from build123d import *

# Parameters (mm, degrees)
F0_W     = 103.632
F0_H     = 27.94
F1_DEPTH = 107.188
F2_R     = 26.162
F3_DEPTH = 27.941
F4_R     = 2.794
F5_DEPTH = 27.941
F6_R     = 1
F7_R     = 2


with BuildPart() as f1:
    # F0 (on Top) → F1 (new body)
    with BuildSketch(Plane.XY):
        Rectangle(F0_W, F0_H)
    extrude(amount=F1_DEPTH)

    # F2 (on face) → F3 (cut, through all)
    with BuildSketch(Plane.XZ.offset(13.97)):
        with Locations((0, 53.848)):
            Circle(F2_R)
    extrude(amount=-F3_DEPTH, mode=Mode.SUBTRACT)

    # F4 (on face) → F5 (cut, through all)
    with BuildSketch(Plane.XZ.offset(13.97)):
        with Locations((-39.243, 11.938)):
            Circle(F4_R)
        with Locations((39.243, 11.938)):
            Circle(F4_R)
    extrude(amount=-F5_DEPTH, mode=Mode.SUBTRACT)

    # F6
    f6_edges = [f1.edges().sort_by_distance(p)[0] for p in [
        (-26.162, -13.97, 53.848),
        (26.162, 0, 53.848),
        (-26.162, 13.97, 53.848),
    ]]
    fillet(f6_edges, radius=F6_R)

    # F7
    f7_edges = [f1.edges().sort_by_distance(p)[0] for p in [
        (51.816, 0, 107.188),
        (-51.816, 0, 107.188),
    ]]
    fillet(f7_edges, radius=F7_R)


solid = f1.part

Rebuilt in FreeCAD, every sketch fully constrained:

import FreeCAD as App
import Part
import Sketcher

V = App.Vector
Q = App.Units.Quantity


def edges_at(feature, points):
    """Names of the edges that pass closest to the given points."""
    edges = feature.Shape.Edges
    near = lambda p: min(range(len(edges)), key=lambda i: edges[i].distToShape(Part.Vertex(*p))[0])
    return sorted({f"Edge{near(p) + 1}" for p in points})


def add_polygon(sketch, points):
    """Adds a closed chain of lines whose ends are joined by coincident constraints."""
    first, n = sketch.GeometryCount, len(points)
    for a, b in zip(points, points[1:] + points[:1]):
        sketch.addGeometry(Part.LineSegment(App.Vector(*a, 0), App.Vector(*b, 0)), False)
    for i in range(n):
        sketch.addConstraint(Sketcher.Constraint("Coincident", first + i, 2, first + (i + 1) % n, 1))

doc = App.newDocument("Part")
body = doc.addObject("PartDesign::Body", "Body")

sketch1 = doc.addObject("Sketcher::SketchObject", "Sketch")
body.addObject(sketch1)
sketch1.AttachmentSupport = (doc.XY_Plane, [""])
sketch1.MapMode = "FlatFace"
add_polygon(sketch1, [(-51.816, 13.97), (-51.816, -13.97), (51.816, -13.97), (51.816, 13.97)])
sketch1.addConstraint(Sketcher.Constraint("Vertical", 0))
sketch1.addConstraint(Sketcher.Constraint("Horizontal", 1))
sketch1.addConstraint(Sketcher.Constraint("Vertical", 2))
sketch1.addConstraint(Sketcher.Constraint("Horizontal", 3))
sketch1.addConstraint(Sketcher.Constraint("Symmetric", 0, 2, 2, 2, -1, 1))
sketch1.addConstraint(Sketcher.Constraint("DistanceY", 0, 2, 0, 1, Q("1.1 in")))
sketch1.addConstraint(Sketcher.Constraint("DistanceX", 1, 1, 1, 2, Q("4.08 in")))
pad1 = doc.addObject("PartDesign::Pad", "Pad")
body.addObject(pad1)
pad1.Profile = sketch1
pad1.Length = Q("4.22 in")

sketch2 = doc.addObject("Sketcher::SketchObject", "Sketch001")
body.addObject(sketch2)
sketch2.AttachmentSupport = (doc.XZ_Plane, [""])
sketch2.MapMode = "FlatFace"
sketch2.AttachmentOffset = App.Placement(V(0, 0, 0.55 * 25.4), App.Rotation())
sketch2.addGeometry(Part.Circle(V(0, 53.848, 0), V(0, 0, 1), 26.162), False)
sketch2.addConstraint(Sketcher.Constraint("PointOnObject", 0, 3, -2))
sketch2.addConstraint(Sketcher.Constraint("Diameter", 0, Q("2.06 in")))
sketch2.addConstraint(Sketcher.Constraint("DistanceY", -1, 1, 0, 3, Q("2.12 in")))
pocket1 = doc.addObject("PartDesign::Pocket", "Pocket")
body.addObject(pocket1)
pocket1.Profile = sketch2
pocket1.Type = "ThroughAll"

sketch3 = doc.addObject("Sketcher::SketchObject", "Sketch002")
body.addObject(sketch3)
sketch3.AttachmentSupport = (doc.XZ_Plane, [""])
sketch3.MapMode = "FlatFace"
sketch3.AttachmentOffset = App.Placement(V(0, 0, 0.55 * 25.4), App.Rotation())
sketch3.addGeometry(Part.Circle(V(-39.243, 11.938, 0), V(0, 0, 1), 2.794), False)
sketch3.addGeometry(Part.Circle(V(39.243, 11.938, 0), V(0, 0, 1), 2.794), False)
sketch3.addConstraint(Sketcher.Constraint("Equal", 0, 1))
sketch3.addConstraint(Sketcher.Constraint("Symmetric", 0, 3, 1, 3, -2))
sketch3.addConstraint(Sketcher.Constraint("Diameter", 0, Q("0.22 in")))
sketch3.addConstraint(Sketcher.Constraint("DistanceY", -1, 1, 0, 3, Q("0.47 in")))
sketch3.addConstraint(Sketcher.Constraint("DistanceX", 0, 3, 1, 3, Q("3.09 in")))
pocket2 = doc.addObject("PartDesign::Pocket", "Pocket001")
body.addObject(pocket2)
pocket2.Profile = sketch3
pocket2.Type = "ThroughAll"
doc.recompute()

fillet = doc.addObject("PartDesign::Fillet", "Fillet")
body.addObject(fillet)
fillet.Base = (pocket2, edges_at(pocket2, [(-26.162, -13.97, 53.848), (26.162, 0, 53.848), (-26.162, 13.97, 53.848)]))
fillet.Radius = 1
doc.recompute()

fillet2 = doc.addObject("PartDesign::Fillet", "Fillet001")
body.addObject(fillet2)
fillet2.Base = (fillet, edges_at(fillet, [(51.816, 0, 107.188), (-51.816, 0, 107.188)]))
fillet2.Radius = 2

doc.recompute()
